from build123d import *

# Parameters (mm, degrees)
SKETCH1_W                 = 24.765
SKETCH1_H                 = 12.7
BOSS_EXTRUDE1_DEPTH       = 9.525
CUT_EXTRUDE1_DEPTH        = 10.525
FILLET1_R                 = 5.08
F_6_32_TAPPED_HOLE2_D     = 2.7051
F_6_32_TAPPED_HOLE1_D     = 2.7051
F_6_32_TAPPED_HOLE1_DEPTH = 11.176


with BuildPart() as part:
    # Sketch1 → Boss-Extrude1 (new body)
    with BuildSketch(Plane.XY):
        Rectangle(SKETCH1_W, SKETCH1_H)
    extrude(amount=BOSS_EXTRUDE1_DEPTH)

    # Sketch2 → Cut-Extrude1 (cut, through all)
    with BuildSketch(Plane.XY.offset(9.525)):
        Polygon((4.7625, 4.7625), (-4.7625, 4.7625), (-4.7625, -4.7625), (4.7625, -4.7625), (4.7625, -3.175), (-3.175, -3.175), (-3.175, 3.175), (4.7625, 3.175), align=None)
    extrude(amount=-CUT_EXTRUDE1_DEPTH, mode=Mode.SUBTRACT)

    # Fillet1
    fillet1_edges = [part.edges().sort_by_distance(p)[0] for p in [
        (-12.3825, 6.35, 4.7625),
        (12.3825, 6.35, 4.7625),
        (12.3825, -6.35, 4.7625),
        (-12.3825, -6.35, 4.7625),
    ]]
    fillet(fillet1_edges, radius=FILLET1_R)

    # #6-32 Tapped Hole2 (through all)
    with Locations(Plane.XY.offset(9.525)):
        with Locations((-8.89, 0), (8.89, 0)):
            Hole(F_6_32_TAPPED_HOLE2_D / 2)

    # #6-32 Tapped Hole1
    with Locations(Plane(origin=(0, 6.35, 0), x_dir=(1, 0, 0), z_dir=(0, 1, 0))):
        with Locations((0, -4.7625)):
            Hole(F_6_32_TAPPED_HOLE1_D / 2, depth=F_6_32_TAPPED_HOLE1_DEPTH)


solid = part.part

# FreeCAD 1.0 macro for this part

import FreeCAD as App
import Part
import Sketcher
from FreeCAD import Vector
Q = App.Units.Quantity


def edges_at(feature, points):
    """Names of the edges that pass closest to the given points."""
    edges = feature.Shape.Edges
    near = lambda p: min(range(len(edges)), key=lambda i: edges[i].distToShape(Part.Vertex(*p))[0])
    return sorted({f"Edge{near(p) + 1}" for p in points})

doc = App.newDocument("Part")
body = doc.addObject("PartDesign::Body", "Body")

# Sketch on XY plane
sketch1 = body.newObject("Sketcher::SketchObject", "Sketch")
sketch1.AttachmentSupport = (doc.getObject("XY_Plane"), [""])
sketch1.MapMode = "FlatFace"
sketch1.addGeometry([
    Part.LineSegment(Vector(-12.3825, 6.35, 0), Vector(-12.3825, -6.35, 0)),
    Part.LineSegment(Vector(-12.3825, -6.35, 0), Vector(12.3825, -6.35, 0)),
    Part.LineSegment(Vector(12.3825, -6.35, 0), Vector(12.3825, 6.35, 0)),
    Part.LineSegment(Vector(12.3825, 6.35, 0), Vector(-12.3825, 6.35, 0)),
], False)
sketch1.addConstraint([
    Sketcher.Constraint("Coincident", 0, 2, 1, 1),
    Sketcher.Constraint("Coincident", 1, 2, 2, 1),
    Sketcher.Constraint("Coincident", 2, 2, 3, 1),
    Sketcher.Constraint("Coincident", 3, 2, 0, 1),
    Sketcher.Constraint("Vertical", 0),
    Sketcher.Constraint("Horizontal", 1),
    Sketcher.Constraint("Vertical", 2),
    Sketcher.Constraint("Horizontal", 3),
    Sketcher.Constraint("Symmetric", 0, 2, 2, 2, -1, 1),
    Sketcher.Constraint("DistanceY", 0, 2, 0, 1, Q("0.5 in")),
    Sketcher.Constraint("DistanceX", 1, 1, 1, 2, Q("0.975 in")),
])
pad1 = body.newObject("PartDesign::Pad", "Pad")
pad1.Profile = sketch1
pad1.Length = Q("0.375 in")

# Sketch on XY plane
sketch2 = body.newObject("Sketcher::SketchObject", "Sketch001")
sketch2.AttachmentSupport = (doc.getObject("XY_Plane"), [""])
sketch2.MapMode = "FlatFace"
sketch2.AttachmentOffset = App.Placement(Vector(0, 0, 0.375 * 25.4), App.Rotation())
sketch2.addGeometry([
    Part.LineSegment(Vector(4.7625, 4.7625, 0), Vector(-4.7625, 4.7625, 0)),  # 0
    Part.LineSegment(Vector(-4.7625, 4.7625, 0), Vector(-4.7625, -4.7625, 0)),  # 1
    Part.LineSegment(Vector(-4.7625, -4.7625, 0), Vector(4.7625, -4.7625, 0)),  # 2
    Part.LineSegment(Vector(4.7625, -4.7625, 0), Vector(4.7625, -3.175, 0)),  # 3
    Part.LineSegment(Vector(4.7625, -3.175, 0), Vector(-3.175, -3.175, 0)),  # 4
    Part.LineSegment(Vector(-3.175, -3.175, 0), Vector(-3.175, 3.175, 0)),  # 5
    Part.LineSegment(Vector(-3.175, 3.175, 0), Vector(4.7625, 3.175, 0)),  # 6
    Part.LineSegment(Vector(4.7625, 3.175, 0), Vector(4.7625, 4.7625, 0)),  # 7
], False)
sketch2.addConstraint([
    Sketcher.Constraint("Coincident", 0, 2, 1, 1),
    Sketcher.Constraint("Coincident", 1, 2, 2, 1),
    Sketcher.Constraint("Coincident", 2, 2, 3, 1),
    Sketcher.Constraint("Coincident", 3, 2, 4, 1),
    Sketcher.Constraint("Coincident", 4, 2, 5, 1),
    Sketcher.Constraint("Coincident", 5, 2, 6, 1),
    Sketcher.Constraint("Coincident", 6, 2, 7, 1),
    Sketcher.Constraint("Coincident", 7, 2, 0, 1),
    Sketcher.Constraint("Horizontal", 0),
    Sketcher.Constraint("Vertical", 1),
    Sketcher.Constraint("Horizontal", 2),
    Sketcher.Constraint("Vertical", 3),
    Sketcher.Constraint("Horizontal", 4),
    Sketcher.Constraint("Vertical", 5),
    Sketcher.Constraint("Horizontal", 6),
    Sketcher.Constraint("Vertical", 7),
    Sketcher.Constraint("Symmetric", 0, 2, 2, 2, -1, 1),
    Sketcher.Constraint("Symmetric", 3, 2, 6, 2, -1),
    Sketcher.Constraint("Equal", 2, 1),
    Sketcher.Constraint("DistanceY", 5, 1, 5, 2, Q("0.25 in")),
    Sketcher.Constraint("DistanceX", 0, 2, 0, 1, Q("0.375 in")),
    Sketcher.Constraint("DistanceX", 4, 2, 4, 1, Q("0.3125 in")),
])
pocket1 = body.newObject("PartDesign::Pocket", "Pocket")
pocket1.Profile = sketch2
pocket1.Type = "ThroughAll"
doc.recompute()

fillet = body.newObject("PartDesign::Fillet", "Fillet")
fillet.Base = (pocket1, edges_at(pocket1, [
    (-12.383, 6.35, 4.763),
    (12.383, 6.35, 4.763),
    (12.383, -6.35, 4.763),
    (-12.383, -6.35, 4.763),
]))
fillet.Radius = Q("0.2 in")

# Sketch on XY plane
sketch3 = body.newObject("Sketcher::SketchObject", "Sketch002")
sketch3.AttachmentSupport = (doc.getObject("XY_Plane"), [""])
sketch3.MapMode = "FlatFace"
sketch3.AttachmentOffset = App.Placement(Vector(0, 0, 0.375 * 25.4), App.Rotation())
sketch3.addGeometry([
    Part.Circle(Vector(-8.89, 0, 0), Vector(0, 0, 1), 1.35255),
    Part.Circle(Vector(8.89, 0, 0), Vector(0, 0, 1), 1.35255),
], False)
sketch3.addConstraint([
    Sketcher.Constraint("Equal", 0, 1),
    Sketcher.Constraint("Symmetric", 0, 3, 1, 3, -1, 1),
    Sketcher.Constraint("PointOnObject", 0, 3, -1),
    Sketcher.Constraint("Diameter", 0, Q("0.1065 in")),
    Sketcher.Constraint("DistanceX", 0, 3, 1, 3, Q("0.7 in")),
])
doc.recompute()
hole = body.newObject("PartDesign::Hole", "Hole")
hole.Profile = sketch3
hole.ThreadType = "None"
hole.Diameter = Q("0.1065 in")
hole.DepthType = "ThroughAll"

# Sketch on XZ plane
sketch4 = body.newObject("Sketcher::SketchObject", "Sketch003")
sketch4.AttachmentSupport = (doc.getObject("XZ_Plane"), [""])
sketch4.MapMode = "FlatFace"
sketch4.AttachmentOffset = App.Placement(Vector(0, 0, -0.25 * 25.4), App.Rotation())
sketch4.addGeometry(Part.Circle(Vector(0, 4.7625, 0), Vector(0, 0, 1), 1.35255), False)
sketch4.addConstraint([
    Sketcher.Constraint("PointOnObject", 0, 3, -2),
    Sketcher.Constraint("Diameter", 0, Q("0.1065 in")),
    Sketcher.Constraint("DistanceY", -1, 1, 0, 3, Q("0.1875 in")),
])
doc.recompute()
hole2 = body.newObject("PartDesign::Hole", "Hole001")
hole2.Profile = sketch4
hole2.ThreadType = "None"
hole2.Diameter = Q("0.1065 in")
hole2.DepthType = "Dimension"
hole2.Depth = Q("0.44 in")
hole2.DrillPoint = "Flat"
hole2.Reversed = True

doc.recompute()
